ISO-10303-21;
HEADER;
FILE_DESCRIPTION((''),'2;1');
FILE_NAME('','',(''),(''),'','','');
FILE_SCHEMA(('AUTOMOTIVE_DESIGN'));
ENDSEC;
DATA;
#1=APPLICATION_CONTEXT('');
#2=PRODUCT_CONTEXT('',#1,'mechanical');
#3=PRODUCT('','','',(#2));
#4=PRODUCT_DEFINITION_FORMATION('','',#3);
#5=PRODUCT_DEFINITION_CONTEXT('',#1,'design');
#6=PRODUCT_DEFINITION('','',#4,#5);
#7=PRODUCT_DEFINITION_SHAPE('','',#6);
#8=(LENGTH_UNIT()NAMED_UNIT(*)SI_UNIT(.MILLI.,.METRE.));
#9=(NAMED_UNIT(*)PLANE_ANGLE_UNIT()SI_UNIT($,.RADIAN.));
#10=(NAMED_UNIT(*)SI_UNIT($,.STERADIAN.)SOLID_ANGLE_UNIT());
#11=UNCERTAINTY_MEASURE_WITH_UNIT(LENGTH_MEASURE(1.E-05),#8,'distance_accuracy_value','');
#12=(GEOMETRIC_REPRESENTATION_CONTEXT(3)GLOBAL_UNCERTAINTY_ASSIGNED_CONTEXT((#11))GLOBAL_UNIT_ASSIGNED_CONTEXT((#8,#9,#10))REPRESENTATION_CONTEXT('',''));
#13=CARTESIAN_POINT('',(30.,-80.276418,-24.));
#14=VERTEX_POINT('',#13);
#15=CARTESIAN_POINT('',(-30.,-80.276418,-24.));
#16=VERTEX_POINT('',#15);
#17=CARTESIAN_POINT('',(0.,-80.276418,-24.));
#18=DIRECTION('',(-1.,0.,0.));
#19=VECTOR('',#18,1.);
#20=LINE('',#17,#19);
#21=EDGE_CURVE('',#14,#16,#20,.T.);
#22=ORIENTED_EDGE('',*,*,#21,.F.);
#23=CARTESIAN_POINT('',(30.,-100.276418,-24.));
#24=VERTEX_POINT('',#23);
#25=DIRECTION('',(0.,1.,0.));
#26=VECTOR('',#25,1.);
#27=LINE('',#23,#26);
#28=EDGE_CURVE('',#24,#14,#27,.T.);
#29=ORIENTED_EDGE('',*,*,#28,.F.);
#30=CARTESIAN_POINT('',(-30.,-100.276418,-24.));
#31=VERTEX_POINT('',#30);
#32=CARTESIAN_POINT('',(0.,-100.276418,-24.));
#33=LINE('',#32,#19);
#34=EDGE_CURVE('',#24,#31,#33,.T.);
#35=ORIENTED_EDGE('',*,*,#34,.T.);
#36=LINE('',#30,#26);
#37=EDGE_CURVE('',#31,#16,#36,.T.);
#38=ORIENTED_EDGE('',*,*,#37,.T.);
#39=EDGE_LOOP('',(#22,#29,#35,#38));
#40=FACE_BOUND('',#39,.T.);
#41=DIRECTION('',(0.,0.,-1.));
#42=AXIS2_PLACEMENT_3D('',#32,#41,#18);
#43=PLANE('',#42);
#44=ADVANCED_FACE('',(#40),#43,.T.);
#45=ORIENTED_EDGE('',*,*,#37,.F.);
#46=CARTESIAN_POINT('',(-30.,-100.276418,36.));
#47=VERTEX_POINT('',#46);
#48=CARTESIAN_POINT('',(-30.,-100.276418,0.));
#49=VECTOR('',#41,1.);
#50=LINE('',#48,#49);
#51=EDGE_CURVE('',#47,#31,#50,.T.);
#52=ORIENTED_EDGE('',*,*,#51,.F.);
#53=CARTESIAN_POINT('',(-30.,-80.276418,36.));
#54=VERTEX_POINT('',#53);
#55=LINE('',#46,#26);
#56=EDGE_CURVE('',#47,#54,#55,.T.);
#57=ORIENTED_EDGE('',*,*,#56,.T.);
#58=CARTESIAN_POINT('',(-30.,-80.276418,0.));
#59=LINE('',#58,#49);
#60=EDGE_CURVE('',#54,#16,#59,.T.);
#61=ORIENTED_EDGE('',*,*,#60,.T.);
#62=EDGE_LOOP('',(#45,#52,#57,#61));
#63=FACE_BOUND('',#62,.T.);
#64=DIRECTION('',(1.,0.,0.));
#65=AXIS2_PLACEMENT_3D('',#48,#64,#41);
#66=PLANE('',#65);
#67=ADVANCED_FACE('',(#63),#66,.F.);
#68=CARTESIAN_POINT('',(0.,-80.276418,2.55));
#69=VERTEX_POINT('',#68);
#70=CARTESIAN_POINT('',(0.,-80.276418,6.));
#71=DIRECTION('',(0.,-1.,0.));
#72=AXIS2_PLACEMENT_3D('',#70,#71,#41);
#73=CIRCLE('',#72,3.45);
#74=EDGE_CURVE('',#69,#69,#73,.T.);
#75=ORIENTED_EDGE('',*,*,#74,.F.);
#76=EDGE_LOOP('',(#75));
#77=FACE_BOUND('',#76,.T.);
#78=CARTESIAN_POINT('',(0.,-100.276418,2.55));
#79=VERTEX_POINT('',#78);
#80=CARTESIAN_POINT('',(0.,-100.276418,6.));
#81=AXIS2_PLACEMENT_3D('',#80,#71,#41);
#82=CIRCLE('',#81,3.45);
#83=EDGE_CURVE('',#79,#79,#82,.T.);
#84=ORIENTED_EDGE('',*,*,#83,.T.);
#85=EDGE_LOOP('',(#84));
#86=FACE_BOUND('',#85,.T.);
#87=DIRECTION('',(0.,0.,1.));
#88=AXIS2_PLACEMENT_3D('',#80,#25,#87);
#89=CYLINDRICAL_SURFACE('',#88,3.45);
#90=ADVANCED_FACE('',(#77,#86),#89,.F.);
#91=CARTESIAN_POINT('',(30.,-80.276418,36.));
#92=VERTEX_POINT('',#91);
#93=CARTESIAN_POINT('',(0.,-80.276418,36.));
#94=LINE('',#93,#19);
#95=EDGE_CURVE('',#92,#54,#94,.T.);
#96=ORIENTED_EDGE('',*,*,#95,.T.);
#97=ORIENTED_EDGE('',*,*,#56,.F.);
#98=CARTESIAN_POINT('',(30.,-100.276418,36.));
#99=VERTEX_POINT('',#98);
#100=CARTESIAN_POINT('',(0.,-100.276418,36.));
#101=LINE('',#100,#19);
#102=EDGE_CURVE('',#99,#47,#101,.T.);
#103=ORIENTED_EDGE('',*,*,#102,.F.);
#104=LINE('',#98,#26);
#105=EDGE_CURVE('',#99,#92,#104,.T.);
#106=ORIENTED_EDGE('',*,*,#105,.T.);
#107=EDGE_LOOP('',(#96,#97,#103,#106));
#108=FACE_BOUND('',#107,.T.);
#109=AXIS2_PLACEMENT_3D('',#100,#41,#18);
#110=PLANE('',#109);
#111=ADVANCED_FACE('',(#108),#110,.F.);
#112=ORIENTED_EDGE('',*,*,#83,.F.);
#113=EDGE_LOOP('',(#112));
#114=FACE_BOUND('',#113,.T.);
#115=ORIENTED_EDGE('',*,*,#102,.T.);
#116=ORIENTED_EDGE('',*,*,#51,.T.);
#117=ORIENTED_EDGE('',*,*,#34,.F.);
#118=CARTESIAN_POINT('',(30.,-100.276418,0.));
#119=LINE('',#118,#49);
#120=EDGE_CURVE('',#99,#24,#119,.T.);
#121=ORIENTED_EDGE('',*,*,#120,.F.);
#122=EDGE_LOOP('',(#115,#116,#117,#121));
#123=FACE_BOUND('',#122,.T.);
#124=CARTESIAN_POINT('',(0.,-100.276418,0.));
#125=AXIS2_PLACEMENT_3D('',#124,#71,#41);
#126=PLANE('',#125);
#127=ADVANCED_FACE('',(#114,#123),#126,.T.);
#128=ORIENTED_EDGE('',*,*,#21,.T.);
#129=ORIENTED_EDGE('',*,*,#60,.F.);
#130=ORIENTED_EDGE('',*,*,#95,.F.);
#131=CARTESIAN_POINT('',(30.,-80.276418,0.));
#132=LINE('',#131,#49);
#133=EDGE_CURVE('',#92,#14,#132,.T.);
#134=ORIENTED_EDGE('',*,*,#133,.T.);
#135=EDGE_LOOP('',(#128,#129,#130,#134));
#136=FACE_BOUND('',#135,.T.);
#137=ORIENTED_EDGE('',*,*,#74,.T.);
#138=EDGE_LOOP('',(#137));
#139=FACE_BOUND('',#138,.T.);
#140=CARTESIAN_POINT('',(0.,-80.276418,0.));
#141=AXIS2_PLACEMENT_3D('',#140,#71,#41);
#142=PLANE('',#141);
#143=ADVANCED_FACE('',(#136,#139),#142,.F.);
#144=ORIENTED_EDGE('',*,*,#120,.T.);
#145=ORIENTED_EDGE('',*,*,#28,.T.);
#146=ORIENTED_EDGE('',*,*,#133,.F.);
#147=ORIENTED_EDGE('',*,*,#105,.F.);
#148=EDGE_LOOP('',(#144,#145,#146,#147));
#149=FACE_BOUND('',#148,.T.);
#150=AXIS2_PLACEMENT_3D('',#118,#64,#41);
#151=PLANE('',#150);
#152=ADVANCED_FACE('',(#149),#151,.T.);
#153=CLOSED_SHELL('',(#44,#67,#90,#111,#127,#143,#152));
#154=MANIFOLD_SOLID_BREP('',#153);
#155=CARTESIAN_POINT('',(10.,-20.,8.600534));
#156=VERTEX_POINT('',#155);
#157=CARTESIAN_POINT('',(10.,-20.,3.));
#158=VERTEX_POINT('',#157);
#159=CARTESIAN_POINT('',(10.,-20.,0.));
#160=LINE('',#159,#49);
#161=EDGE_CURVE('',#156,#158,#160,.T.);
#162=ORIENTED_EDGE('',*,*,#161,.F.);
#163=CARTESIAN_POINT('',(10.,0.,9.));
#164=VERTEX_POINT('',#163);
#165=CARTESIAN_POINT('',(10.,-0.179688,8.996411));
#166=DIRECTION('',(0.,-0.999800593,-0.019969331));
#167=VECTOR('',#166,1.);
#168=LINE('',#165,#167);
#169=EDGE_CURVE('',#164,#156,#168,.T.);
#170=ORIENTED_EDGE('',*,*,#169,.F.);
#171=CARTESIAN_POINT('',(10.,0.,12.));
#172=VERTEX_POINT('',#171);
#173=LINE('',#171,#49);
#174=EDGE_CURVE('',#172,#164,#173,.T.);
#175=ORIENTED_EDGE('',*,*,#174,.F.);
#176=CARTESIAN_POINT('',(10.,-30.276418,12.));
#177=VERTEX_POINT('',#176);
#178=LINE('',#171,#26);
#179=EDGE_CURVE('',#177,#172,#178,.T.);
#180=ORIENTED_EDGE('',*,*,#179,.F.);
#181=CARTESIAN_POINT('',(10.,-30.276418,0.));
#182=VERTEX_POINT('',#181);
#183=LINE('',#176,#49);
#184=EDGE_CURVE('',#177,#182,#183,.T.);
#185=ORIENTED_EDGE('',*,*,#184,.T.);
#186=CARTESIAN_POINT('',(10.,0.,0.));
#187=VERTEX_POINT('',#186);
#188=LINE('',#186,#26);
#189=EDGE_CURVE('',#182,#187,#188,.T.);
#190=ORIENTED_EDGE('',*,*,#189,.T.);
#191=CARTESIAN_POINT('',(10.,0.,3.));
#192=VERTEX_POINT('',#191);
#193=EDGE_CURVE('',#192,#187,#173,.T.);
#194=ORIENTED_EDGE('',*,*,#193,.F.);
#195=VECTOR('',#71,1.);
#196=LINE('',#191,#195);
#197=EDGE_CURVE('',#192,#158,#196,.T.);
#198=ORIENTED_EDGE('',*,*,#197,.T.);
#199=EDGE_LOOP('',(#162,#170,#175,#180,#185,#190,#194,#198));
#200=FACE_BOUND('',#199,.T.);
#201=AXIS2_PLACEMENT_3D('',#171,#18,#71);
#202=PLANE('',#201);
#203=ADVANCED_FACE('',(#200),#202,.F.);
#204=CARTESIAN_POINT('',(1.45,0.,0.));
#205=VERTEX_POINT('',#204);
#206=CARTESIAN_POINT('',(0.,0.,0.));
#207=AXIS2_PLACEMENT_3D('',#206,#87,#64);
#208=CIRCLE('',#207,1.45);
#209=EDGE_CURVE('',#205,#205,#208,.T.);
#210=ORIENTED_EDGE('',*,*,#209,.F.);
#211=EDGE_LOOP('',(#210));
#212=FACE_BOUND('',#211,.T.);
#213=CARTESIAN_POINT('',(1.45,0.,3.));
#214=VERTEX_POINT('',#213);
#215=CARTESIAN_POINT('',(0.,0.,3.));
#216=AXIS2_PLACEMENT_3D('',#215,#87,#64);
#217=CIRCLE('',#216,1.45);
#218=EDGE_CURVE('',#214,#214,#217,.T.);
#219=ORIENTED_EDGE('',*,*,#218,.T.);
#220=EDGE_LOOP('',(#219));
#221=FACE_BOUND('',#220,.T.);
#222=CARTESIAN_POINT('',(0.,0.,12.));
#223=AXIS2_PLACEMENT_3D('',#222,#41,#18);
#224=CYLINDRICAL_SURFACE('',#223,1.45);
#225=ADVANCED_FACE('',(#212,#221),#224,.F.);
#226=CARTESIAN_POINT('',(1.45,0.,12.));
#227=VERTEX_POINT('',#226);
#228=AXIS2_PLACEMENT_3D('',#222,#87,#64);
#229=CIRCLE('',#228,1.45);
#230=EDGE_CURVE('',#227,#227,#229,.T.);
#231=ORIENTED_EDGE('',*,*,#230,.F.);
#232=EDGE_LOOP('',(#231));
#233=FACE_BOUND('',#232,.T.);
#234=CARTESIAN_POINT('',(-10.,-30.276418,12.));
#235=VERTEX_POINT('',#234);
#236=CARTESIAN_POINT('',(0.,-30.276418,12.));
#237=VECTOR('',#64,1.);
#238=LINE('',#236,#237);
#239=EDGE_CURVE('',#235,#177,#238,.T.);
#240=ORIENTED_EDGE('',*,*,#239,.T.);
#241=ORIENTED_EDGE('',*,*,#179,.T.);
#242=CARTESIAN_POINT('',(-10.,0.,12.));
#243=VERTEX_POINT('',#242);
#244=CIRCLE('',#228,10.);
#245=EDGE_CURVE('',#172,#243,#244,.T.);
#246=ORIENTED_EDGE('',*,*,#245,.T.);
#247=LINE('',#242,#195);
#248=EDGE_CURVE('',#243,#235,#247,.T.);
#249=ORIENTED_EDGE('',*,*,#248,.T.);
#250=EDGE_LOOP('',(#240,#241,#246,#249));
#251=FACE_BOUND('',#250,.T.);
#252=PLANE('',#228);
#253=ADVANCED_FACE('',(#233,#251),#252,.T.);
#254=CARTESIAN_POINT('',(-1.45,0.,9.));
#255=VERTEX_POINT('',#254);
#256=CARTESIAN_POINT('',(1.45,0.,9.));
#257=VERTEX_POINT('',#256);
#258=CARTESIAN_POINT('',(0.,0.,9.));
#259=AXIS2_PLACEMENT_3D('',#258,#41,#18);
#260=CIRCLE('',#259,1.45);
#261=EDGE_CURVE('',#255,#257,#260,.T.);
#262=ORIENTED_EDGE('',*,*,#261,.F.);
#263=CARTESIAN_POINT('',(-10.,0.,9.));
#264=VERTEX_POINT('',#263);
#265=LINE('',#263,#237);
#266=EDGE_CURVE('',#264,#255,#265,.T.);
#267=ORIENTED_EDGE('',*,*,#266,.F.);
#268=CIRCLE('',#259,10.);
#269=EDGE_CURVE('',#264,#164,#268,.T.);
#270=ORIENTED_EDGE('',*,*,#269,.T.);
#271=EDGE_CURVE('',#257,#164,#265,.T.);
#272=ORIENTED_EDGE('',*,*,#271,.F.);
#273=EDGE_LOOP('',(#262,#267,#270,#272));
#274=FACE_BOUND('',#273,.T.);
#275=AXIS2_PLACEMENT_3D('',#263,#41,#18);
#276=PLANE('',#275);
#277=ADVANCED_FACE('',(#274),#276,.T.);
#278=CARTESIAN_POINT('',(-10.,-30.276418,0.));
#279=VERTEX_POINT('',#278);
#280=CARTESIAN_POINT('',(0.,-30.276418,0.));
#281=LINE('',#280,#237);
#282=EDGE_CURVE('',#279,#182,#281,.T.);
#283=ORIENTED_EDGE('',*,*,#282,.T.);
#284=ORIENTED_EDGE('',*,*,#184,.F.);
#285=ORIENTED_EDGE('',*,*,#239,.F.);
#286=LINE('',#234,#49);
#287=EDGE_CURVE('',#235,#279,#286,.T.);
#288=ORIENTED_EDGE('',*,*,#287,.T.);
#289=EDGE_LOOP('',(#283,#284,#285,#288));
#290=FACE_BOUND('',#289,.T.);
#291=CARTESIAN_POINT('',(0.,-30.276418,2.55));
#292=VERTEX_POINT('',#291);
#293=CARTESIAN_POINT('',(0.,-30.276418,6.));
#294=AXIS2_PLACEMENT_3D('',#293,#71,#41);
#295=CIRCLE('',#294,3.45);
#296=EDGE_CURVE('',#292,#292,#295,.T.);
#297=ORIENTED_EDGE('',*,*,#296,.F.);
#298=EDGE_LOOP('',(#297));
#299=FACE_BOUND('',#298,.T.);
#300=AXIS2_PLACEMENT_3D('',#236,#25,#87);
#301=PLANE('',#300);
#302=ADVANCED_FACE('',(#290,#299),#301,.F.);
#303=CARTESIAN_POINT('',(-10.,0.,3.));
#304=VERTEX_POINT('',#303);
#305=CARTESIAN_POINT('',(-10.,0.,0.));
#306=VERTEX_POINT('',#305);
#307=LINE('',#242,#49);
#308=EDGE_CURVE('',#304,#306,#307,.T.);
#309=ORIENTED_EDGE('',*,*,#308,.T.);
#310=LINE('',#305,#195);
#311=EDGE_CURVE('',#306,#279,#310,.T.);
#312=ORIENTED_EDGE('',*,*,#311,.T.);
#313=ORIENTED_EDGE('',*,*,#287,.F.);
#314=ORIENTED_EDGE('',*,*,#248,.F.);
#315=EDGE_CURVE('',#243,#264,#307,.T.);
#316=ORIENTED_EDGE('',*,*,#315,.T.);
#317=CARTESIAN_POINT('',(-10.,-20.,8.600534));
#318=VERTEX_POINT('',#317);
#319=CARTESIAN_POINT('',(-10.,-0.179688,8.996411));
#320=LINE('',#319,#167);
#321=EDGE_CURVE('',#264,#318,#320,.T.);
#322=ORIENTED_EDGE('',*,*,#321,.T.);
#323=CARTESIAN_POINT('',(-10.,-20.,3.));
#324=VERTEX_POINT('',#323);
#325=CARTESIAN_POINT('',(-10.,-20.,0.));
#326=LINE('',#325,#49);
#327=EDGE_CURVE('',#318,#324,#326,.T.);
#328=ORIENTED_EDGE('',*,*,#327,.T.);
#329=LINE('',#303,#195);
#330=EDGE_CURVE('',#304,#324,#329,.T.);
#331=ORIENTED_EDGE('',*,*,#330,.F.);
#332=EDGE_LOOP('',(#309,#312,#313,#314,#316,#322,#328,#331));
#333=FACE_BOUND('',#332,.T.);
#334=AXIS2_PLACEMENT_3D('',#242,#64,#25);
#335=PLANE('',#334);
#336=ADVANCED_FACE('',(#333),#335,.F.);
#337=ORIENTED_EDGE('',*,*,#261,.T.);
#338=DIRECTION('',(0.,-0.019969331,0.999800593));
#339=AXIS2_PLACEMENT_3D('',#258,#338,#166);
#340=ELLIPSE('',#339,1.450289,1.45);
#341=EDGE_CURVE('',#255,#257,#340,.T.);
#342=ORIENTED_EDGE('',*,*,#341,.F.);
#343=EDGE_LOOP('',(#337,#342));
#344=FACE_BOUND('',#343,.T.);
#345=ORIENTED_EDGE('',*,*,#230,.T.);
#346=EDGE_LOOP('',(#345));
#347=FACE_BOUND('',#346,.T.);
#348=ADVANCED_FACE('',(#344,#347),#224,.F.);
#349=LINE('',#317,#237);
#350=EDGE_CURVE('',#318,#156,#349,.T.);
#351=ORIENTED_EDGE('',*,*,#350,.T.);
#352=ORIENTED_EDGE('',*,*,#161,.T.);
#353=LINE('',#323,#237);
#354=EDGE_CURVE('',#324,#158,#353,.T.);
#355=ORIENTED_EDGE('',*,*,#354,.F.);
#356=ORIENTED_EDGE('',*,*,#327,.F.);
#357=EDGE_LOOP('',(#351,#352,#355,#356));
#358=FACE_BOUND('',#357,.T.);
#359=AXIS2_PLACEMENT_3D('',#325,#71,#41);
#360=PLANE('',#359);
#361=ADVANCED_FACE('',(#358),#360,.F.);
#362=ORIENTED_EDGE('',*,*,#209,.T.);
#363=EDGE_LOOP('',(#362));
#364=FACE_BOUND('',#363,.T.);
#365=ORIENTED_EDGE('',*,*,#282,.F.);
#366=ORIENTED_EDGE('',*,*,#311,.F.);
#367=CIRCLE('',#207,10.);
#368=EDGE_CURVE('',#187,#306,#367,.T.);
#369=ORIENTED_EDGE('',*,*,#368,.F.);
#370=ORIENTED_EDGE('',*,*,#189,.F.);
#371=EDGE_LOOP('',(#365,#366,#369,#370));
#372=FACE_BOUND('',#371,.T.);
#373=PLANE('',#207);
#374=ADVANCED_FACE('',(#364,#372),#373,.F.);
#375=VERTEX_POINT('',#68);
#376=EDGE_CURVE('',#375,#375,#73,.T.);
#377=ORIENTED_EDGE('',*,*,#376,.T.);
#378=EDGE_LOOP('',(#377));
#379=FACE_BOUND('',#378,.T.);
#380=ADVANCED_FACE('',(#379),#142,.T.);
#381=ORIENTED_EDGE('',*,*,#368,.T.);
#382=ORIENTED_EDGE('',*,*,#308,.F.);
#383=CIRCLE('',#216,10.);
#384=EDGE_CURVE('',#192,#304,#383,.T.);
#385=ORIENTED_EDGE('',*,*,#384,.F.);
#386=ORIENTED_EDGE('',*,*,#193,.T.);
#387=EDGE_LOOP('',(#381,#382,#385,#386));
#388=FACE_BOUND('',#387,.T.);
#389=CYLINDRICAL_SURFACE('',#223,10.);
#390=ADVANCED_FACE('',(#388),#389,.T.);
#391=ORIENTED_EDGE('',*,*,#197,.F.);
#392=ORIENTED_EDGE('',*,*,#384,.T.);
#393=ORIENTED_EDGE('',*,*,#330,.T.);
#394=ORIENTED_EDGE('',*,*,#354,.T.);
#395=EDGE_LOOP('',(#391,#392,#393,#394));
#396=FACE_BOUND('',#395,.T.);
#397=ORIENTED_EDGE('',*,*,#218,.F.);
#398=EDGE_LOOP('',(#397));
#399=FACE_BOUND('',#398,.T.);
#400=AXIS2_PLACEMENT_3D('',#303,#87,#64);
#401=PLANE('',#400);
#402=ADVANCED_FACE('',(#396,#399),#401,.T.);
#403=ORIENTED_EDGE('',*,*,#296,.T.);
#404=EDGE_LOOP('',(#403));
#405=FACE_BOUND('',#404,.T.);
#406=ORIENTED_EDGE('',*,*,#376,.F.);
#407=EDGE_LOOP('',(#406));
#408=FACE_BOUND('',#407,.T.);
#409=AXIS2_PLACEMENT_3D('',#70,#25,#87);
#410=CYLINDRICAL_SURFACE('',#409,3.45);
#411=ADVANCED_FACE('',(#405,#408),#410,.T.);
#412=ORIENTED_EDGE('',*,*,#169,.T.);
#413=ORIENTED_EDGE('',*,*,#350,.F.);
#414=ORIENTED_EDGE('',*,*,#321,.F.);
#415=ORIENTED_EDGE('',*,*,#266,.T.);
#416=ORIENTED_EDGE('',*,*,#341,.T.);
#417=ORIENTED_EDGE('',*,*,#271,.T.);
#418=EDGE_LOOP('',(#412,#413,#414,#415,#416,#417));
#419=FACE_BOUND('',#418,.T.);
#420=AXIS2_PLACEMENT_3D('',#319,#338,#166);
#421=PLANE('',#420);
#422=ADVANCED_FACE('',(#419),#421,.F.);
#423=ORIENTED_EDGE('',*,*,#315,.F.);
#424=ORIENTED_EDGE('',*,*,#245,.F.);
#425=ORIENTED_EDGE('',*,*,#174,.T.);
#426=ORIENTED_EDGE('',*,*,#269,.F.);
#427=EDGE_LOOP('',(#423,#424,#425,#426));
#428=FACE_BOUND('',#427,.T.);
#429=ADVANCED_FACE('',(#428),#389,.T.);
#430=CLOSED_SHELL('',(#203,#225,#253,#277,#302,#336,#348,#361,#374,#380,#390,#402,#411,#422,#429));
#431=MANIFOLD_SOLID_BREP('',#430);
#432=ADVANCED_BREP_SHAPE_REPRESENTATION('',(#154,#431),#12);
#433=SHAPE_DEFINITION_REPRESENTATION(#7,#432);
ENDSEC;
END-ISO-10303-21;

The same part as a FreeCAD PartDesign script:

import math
import FreeCAD as App
import Part
import Sketcher

V = App.Vector
Q = App.Units.Quantity

doc = App.newDocument("Part")
body = doc.addObject("PartDesign::Body", "Body")

# Sketch on XY plane
sketch1 = body.newObject("Sketcher::SketchObject", "Sketch")
sketch1.AttachmentSupport = (doc.getObject("XY_Plane"), [""])
sketch1.MapMode = "FlatFace"
sketch1.addGeometry([
    Part.LineSegment(V(-10, 0, 0), V(-10, -30.3, 0)),  # 0
    Part.LineSegment(V(-10, -30.3, 0), V(10, -30.3, 0)),  # 1
    Part.LineSegment(V(10, -30.3, 0), V(10, 0, 0)),  # 2
    Part.ArcOfCircle(Part.Circle(V(0, 0, 0), V(0, 0, 1), 10), math.radians(0), math.radians(180)),  # 3
    Part.Circle(V(0, 0, 0), V(0, 0, 1), 1.4),  # 4
], False)
sketch1.addConstraint([
    Sketcher.Constraint("Coincident", 0, 2, 1, 1),
    Sketcher.Constraint("Coincident", 1, 2, 2, 1),
    Sketcher.Constraint("Tangent", 2, 2, 3, 1),
    Sketcher.Constraint("Tangent", 3, 2, 0, 1),
    Sketcher.Constraint("Vertical", 0),
    Sketcher.Constraint("Horizontal", 1),
    Sketcher.Constraint("Vertical", 2),
    Sketcher.Constraint("Coincident", 3, 3, -1, 1),
    Sketcher.Constraint("Coincident", 4, 3, -1, 1),
    Sketcher.Constraint("Radius", 3, Q("10 mm")),
    Sketcher.Constraint("Diameter", 4, Q("2.9 mm")),
    Sketcher.Constraint("DistanceY", 0, 2, 0, 1, Q("30.276418 mm")),
])
pad1 = body.newObject("PartDesign::Pad", "Pad")
pad1.Profile = sketch1
pad1.Length = 12

# Sketch on YZ plane
sketch2 = body.newObject("Sketcher::SketchObject", "Sketch001")
sketch2.AttachmentSupport = (doc.getObject("YZ_Plane"), [""])
sketch2.MapMode = "FlatFace"
sketch2.AttachmentOffset = App.Placement(V(0, 0, 10), App.Rotation())
sketch2.addGeometry([
    Part.LineSegment(V(15.780779, 3, 0), V(15.780779, 9, 0)),  # 0
    Part.LineSegment(V(15.780779, 9, 0), V(0, 9, 0)),  # 1
    Part.LineSegment(V(0, 9, 0), V(-20, 8.600534, 0)),  # 2
    Part.LineSegment(V(-20, 8.600534, 0), V(-20, 3, 0)),  # 3
    Part.LineSegment(V(-20, 3, 0), V(15.780779, 3, 0)),  # 4
], False)
sketch2.addConstraint([
    Sketcher.Constraint("Coincident", 0, 2, 1, 1),
    Sketcher.Constraint("Coincident", 1, 2, 2, 1),
    Sketcher.Constraint("Coincident", 2, 2, 3, 1),
    Sketcher.Constraint("Coincident", 3, 2, 4, 1),
    Sketcher.Constraint("Coincident", 4, 2, 0, 1),
    Sketcher.Constraint("Vertical", 0),
    Sketcher.Constraint("Horizontal", 1),
    Sketcher.Constraint("Vertical", 3),
    Sketcher.Constraint("Horizontal", 4),
    Sketcher.Constraint("PointOnObject", 1, 2, -2),
    Sketcher.Constraint("DistanceY", 0, 1, 0, 2, Q("6 mm")),
    Sketcher.Constraint("DistanceY", -1, 1, 0, 2, Q("9 mm")),
    Sketcher.Constraint("DistanceX", 2, 2, -1, 1, Q("20 mm")),
    Sketcher.Constraint("DistanceX", 1, 2, 1, 1, Q("15.780779 mm")),
    Sketcher.Constraint("Distance", 2, Q("20.003989 mm")),
])
pocket1 = body.newObject("PartDesign::Pocket", "Pocket")
pocket1.Profile = sketch2
pocket1.Type = "ThroughAll"

# Sketch on XZ plane
sketch3 = body.newObject("Sketcher::SketchObject", "Sketch002")
sketch3.AttachmentSupport = (doc.getObject("XZ_Plane"), [""])
sketch3.MapMode = "FlatFace"
sketch3.AttachmentOffset = App.Placement(V(0, 0, 30.276418), App.Rotation())
sketch3.addGeometry(Part.Circle(V(0, 6, 0), V(0, 0, 1), 3.5), False)
sketch3.addConstraint([
    Sketcher.Constraint("PointOnObject", 0, 3, -2),
    Sketcher.Constraint("Diameter", 0, Q("6.9 mm")),
    Sketcher.Constraint("DistanceY", -1, 1, 0, 3, Q("6 mm")),
])
pad2 = body.newObject("PartDesign::Pad", "Pad001")
pad2.Profile = sketch3
pad2.Length = 50
body2 = doc.addObject("PartDesign::Body", "Body001")

# Sketch on XZ plane
sketch4 = body2.newObject("Sketcher::SketchObject", "Sketch003")
sketch4.AttachmentSupport = (doc.getObject("XZ_Plane001"), [""])
sketch4.MapMode = "FlatFace"
sketch4.AttachmentOffset = App.Placement(V(0, 0, 80.276418), App.Rotation())
sketch4.addGeometry([
    Part.LineSegment(V(-30, 36, 0), V(-30, -24, 0)),  # 0
    Part.LineSegment(V(-30, -24, 0), V(30, -24, 0)),  # 1
    Part.LineSegment(V(30, -24, 0), V(30, 36, 0)),  # 2
    Part.LineSegment(V(30, 36, 0), V(-30, 36, 0)),  # 3
    Part.Circle(V(0, 6, 0), V(0, 0, 1), 3.5),  # 4
], False)
sketch4.addConstraint([
    Sketcher.Constraint("Coincident", 0, 2, 1, 1),
    Sketcher.Constraint("Coincident", 1, 2, 2, 1),
    Sketcher.Constraint("Coincident", 2, 2, 3, 1),
    Sketcher.Constraint("Coincident", 3, 2, 0, 1),
    Sketcher.Constraint("Vertical", 0),
    Sketcher.Constraint("Horizontal", 1),
    Sketcher.Constraint("Vertical", 2),
    Sketcher.Constraint("Horizontal", 3),
    Sketcher.Constraint("PointOnObject", 4, 3, -2),
    Sketcher.Constraint("Equal", 3, 0),
    Sketcher.Constraint("Diameter", 4, Q("6.9 mm")),
    Sketcher.Constraint("DistanceX", 1, 1, 1, 2, Q("60 mm")),
    Sketcher.Constraint("DistanceY", -1, 1, 4, 3, Q("6 mm")),
    Sketcher.Constraint("DistanceX", 0, 2, -1, 1, Q("30 mm")),
    Sketcher.Constraint("DistanceY", 0, 2, -1, 1, Q("24 mm")),
])
pad3 = body2.newObject("PartDesign::Pad", "Pad002")
pad3.Profile = sketch4
pad3.Length = 20

doc.recompute()
